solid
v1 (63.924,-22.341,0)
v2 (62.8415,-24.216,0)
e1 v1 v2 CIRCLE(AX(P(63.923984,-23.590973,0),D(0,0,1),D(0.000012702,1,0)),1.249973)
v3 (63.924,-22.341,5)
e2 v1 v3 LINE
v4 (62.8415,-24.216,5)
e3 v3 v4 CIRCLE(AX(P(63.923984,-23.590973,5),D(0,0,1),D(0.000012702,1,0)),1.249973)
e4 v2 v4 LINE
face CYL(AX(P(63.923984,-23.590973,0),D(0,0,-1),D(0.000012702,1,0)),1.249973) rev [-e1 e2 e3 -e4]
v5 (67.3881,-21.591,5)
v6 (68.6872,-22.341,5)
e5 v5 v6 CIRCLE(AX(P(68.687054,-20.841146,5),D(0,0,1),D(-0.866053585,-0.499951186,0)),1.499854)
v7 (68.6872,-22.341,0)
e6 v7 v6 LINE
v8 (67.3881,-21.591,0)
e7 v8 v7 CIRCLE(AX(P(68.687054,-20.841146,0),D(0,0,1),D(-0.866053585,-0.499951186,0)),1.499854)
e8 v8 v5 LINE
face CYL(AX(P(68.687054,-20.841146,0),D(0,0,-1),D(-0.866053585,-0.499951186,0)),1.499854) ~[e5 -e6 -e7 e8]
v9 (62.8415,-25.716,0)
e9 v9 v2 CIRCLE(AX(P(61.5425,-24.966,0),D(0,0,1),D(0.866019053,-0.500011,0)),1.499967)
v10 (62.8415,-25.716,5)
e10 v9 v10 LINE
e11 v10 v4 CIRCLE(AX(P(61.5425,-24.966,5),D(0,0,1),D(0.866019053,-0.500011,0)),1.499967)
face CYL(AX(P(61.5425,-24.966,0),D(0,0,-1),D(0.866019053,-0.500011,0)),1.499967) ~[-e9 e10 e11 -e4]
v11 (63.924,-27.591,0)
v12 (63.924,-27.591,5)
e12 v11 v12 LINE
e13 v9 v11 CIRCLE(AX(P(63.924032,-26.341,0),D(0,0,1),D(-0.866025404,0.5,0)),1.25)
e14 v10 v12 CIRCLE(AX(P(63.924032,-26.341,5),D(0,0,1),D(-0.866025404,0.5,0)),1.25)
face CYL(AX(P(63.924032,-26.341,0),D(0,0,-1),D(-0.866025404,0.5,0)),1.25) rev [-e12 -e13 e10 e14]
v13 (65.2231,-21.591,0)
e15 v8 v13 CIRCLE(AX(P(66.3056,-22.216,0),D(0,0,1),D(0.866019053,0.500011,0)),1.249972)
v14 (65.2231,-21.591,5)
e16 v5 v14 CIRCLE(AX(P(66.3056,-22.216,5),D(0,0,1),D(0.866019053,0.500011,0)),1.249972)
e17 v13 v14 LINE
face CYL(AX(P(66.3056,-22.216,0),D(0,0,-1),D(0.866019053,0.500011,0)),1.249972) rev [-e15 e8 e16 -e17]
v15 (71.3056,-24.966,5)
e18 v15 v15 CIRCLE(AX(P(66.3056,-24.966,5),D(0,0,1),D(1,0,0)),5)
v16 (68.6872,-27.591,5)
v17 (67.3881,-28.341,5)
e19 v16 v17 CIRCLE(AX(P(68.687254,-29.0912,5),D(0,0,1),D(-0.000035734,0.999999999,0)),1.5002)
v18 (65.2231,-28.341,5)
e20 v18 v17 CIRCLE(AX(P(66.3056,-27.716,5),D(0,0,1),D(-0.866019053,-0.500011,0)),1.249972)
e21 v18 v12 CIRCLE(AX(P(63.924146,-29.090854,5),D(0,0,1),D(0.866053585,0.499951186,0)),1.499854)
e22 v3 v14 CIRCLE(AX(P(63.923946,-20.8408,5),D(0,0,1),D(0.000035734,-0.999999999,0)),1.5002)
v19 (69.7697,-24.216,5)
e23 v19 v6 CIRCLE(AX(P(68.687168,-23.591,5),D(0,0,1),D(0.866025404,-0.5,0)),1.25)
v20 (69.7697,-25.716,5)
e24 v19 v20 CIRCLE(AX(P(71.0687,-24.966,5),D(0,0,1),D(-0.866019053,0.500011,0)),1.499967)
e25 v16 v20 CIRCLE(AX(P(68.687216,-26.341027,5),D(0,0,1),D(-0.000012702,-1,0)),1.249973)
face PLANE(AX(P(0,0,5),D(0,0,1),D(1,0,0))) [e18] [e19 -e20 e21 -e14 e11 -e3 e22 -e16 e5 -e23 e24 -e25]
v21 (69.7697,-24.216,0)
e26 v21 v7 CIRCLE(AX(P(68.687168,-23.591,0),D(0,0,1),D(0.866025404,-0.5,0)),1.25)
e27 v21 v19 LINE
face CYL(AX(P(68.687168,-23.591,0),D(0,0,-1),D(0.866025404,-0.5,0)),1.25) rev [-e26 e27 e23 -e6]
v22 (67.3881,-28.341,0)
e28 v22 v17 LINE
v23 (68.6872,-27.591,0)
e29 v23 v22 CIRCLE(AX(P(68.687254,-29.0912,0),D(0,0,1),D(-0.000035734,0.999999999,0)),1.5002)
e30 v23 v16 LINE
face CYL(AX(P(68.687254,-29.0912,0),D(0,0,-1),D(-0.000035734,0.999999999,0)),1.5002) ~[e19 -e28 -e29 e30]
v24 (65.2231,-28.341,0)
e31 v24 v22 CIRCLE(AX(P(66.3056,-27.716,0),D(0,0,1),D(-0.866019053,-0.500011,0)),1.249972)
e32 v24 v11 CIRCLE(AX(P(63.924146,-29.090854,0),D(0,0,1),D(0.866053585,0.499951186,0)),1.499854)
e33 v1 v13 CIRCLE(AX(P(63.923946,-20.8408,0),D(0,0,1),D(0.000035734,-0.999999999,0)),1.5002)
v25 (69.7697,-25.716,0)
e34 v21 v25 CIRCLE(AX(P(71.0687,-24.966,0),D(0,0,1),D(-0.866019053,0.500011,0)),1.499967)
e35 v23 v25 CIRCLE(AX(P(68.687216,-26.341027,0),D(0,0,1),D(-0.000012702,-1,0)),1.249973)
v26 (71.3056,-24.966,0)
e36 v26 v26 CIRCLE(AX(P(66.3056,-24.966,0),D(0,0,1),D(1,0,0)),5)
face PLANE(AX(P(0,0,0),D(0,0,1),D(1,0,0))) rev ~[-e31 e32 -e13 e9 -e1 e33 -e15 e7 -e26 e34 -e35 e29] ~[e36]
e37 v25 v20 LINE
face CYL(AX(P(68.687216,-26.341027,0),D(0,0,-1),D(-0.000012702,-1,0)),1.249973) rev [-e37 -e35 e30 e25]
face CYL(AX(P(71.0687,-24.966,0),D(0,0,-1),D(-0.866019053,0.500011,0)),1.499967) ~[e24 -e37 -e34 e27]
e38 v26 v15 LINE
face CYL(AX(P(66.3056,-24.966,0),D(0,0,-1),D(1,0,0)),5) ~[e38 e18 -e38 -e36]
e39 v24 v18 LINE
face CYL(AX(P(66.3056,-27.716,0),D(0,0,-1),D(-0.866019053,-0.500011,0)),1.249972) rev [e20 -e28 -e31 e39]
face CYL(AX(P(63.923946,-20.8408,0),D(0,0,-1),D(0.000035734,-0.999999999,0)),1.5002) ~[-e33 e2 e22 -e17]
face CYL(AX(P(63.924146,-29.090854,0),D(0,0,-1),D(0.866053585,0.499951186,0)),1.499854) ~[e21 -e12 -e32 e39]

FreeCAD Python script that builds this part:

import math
import FreeCAD as App
import Part
import Sketcher
from FreeCAD import Vector
Q = App.Units.Quantity

doc = App.newDocument("Part")
params = doc.addObject("Spreadsheet::Sheet", "Params")
for row, (alias, value) in enumerate([
    ("sketch1_diameter", "10 mm"),
    ("sketch1_radius", "1.5 mm"),
    ("sketch1_radius2", "1.25 mm"),
    ("pad1_length", "5 mm"),
], start=1):
    params.set(f"A{row}", alias)
    params.set(f"B{row}", "=" + value)
    params.setAlias(f"B{row}", alias)

body = doc.addObject("PartDesign::Body", "Body")

# Sketch on XY plane
sketch1 = body.newObject("Sketcher::SketchObject", "Sketch")
sketch1.AttachmentSupport = (doc.getObject("XY_Plane"), [""])
sketch1.MapMode = "FlatFace"
sketch1.addGeometry(Part.Circle(Vector(66.3056, -24.966, 0), Vector(0, 0, 1), 5), False)
sketch1.addGeometry(Part.ArcOfCircle(Part.Circle(Vector(68.6872, -23.591, 0), Vector(0, 0, 1), 1.249972), math.radians(-30.000728), math.radians(90)), False)
sketch1.addGeometry(Part.ArcOfCircle(Part.Circle(Vector(71.0687, -24.966, 0), Vector(0, 0, 1), 1.499967), math.radians(149.999272), math.radians(210.000728)), False)
sketch1.addGeometry(Part.ArcOfCircle(Part.Circle(Vector(68.6872, -26.341, 0), Vector(0, 0, 1), 1.25), math.radians(-90), math.radians(30.000728)), False)
sketch1.addGeometry(Part.ArcOfCircle(Part.Circle(Vector(68.6872, -29.091, 0), Vector(0, 0, 1), 1.5), math.radians(90), math.radians(150.001182)), False)
sketch1.addGeometry(Part.ArcOfCircle(Part.Circle(Vector(66.3056, -27.716, 0), Vector(0, 0, 1), 1.249972), math.radians(-149.999272), math.radians(-30.000728)), False)
sketch1.addGeometry(Part.ArcOfCircle(Part.Circle(Vector(63.924, -29.091, 0), Vector(0, 0, 1), 1.500054), math.radians(29.998818), math.radians(90)), False)
sketch1.addGeometry(Part.ArcOfCircle(Part.Circle(Vector(63.924, -26.341, 0), Vector(0, 0, 1), 1.249972), math.radians(149.999272), math.radians(270)), False)
sketch1.addGeometry(Part.ArcOfCircle(Part.Circle(Vector(61.5425, -24.966, 0), Vector(0, 0, 1), 1.499967), math.radians(-30.000728), math.radians(30.000728)), False)
sketch1.addGeometry(Part.ArcOfCircle(Part.Circle(Vector(63.924, -23.591, 0), Vector(0, 0, 1), 1.25), math.radians(90), math.radians(210.000728)), False)
sketch1.addGeometry(Part.ArcOfCircle(Part.Circle(Vector(63.924, -20.841, 0), Vector(0, 0, 1), 1.5), math.radians(-90), math.radians(-29.998818)), False)
sketch1.addGeometry(Part.ArcOfCircle(Part.Circle(Vector(66.3056, -22.216, 0), Vector(0, 0, 1), 1.249972), math.radians(30.000728), math.radians(149.999272)), False)
sketch1.addGeometry(Part.ArcOfCircle(Part.Circle(Vector(68.6872, -20.841, 0), Vector(0, 0, 1), 1.500054), math.radians(-150.001182), math.radians(-90)), False)
sketch1.addConstraint(Sketcher.Constraint("Tangent", 1, 1, 2, 1))
sketch1.addConstraint(Sketcher.Constraint("Tangent", 2, 2, 3, 2))
sketch1.addConstraint(Sketcher.Constraint("Tangent", 3, 1, 4, 1))
sketch1.addConstraint(Sketcher.Constraint("Tangent", 4, 2, 5, 2))
sketch1.addConstraint(Sketcher.Constraint("Tangent", 5, 1, 6, 1))
sketch1.addConstraint(Sketcher.Constraint("Tangent", 6, 2, 7, 2))
sketch1.addConstraint(Sketcher.Constraint("Tangent", 7, 1, 8, 1))
sketch1.addConstraint(Sketcher.Constraint("Tangent", 8, 2, 9, 2))
sketch1.addConstraint(Sketcher.Constraint("Tangent", 9, 1, 10, 1))
sketch1.addConstraint(Sketcher.Constraint("Tangent", 10, 2, 11, 2))
sketch1.addConstraint(Sketcher.Constraint("Tangent", 11, 1, 12, 1))
sketch1.addConstraint(Sketcher.Constraint("Tangent", 12, 2, 1, 2))
sketch1.addConstraint(Sketcher.Constraint("Equal", 1, 3))
sketch1.addConstraint(Sketcher.Constraint("Equal", 2, 4))
sketch1.addConstraint(Sketcher.Constraint("Equal", 3, 5))
sketch1.addConstraint(Sketcher.Constraint("Equal", 4, 6))
sketch1.addConstraint(Sketcher.Constraint("Equal", 5, 7))
sketch1.addConstraint(Sketcher.Constraint("Equal", 6, 8))
sketch1.addConstraint(Sketcher.Constraint("Equal", 7, 9))
sketch1.addConstraint(Sketcher.Constraint("Equal", 8, 10))
sketch1.addConstraint(Sketcher.Constraint("Equal", 9, 11))
sketch1.addConstraint(Sketcher.Constraint("Equal", 10, 12))
sketch1.addConstraint(Sketcher.Constraint("Horizontal", 0, 3, 2, 3))
sketch1.addConstraint(Sketcher.Constraint("Horizontal", 4, 3, 6, 3))
sketch1.addConstraint(Sketcher.Constraint("Horizontal", 2, 3, 8, 3))
sketch1.addConstraint(Sketcher.Constraint("Horizontal", 1, 3, 9, 3))
sketch1.addConstraint(Sketcher.Constraint("Vertical", 1, 3, 3, 3))
sketch1.addConstraint(Sketcher.Constraint("Vertical", 3, 3, 4, 3))
sketch1.addConstraint(Sketcher.Constraint("Vertical", 0, 3, 5, 3))
sketch1.addConstraint(Sketcher.Constraint("Vertical", 6, 3, 7, 3))
sketch1.addConstraint(Sketcher.Constraint("Vertical", 9, 3, 10, 3))
sketch1.addConstraint(Sketcher.Constraint("Vertical", 5, 3, 11, 3))
sketch1.addConstraint(Sketcher.Constraint("Diameter", 0, Q("10 mm")))
sketch1.addConstraint(Sketcher.Constraint("Radius", 2, Q("1.5 mm")))
sketch1.addConstraint(Sketcher.Constraint("Radius", 1, Q("1.25 mm")))
sketch1.addConstraint(Sketcher.Constraint("DistanceY", 2, 2, 1, 1, Q("1.5 mm")))
sketch1.addConstraint(Sketcher.Constraint("DistanceY", 4, 2, 3, 3, Q("2 mm")))
sketch1.addConstraint(Sketcher.Constraint("DistanceY", 0, 3, -1, 1, Q("24.966 mm")))
sketch1.addConstraint(Sketcher.Constraint("DistanceX", -1, 1, 6, 3, Q("63.924 mm")))
sketch1.setExpression("Constraints[32]", "Params.sketch1_diameter")
sketch1.setExpression("Constraints[33]", "Params.sketch1_radius")
sketch1.setExpression("Constraints[34]", "Params.sketch1_radius2")
pad1 = body.newObject("PartDesign::Pad", "Pad")
pad1.Profile = sketch1
pad1.setExpression("Length", "Params.pad1_length")

doc.recompute()
